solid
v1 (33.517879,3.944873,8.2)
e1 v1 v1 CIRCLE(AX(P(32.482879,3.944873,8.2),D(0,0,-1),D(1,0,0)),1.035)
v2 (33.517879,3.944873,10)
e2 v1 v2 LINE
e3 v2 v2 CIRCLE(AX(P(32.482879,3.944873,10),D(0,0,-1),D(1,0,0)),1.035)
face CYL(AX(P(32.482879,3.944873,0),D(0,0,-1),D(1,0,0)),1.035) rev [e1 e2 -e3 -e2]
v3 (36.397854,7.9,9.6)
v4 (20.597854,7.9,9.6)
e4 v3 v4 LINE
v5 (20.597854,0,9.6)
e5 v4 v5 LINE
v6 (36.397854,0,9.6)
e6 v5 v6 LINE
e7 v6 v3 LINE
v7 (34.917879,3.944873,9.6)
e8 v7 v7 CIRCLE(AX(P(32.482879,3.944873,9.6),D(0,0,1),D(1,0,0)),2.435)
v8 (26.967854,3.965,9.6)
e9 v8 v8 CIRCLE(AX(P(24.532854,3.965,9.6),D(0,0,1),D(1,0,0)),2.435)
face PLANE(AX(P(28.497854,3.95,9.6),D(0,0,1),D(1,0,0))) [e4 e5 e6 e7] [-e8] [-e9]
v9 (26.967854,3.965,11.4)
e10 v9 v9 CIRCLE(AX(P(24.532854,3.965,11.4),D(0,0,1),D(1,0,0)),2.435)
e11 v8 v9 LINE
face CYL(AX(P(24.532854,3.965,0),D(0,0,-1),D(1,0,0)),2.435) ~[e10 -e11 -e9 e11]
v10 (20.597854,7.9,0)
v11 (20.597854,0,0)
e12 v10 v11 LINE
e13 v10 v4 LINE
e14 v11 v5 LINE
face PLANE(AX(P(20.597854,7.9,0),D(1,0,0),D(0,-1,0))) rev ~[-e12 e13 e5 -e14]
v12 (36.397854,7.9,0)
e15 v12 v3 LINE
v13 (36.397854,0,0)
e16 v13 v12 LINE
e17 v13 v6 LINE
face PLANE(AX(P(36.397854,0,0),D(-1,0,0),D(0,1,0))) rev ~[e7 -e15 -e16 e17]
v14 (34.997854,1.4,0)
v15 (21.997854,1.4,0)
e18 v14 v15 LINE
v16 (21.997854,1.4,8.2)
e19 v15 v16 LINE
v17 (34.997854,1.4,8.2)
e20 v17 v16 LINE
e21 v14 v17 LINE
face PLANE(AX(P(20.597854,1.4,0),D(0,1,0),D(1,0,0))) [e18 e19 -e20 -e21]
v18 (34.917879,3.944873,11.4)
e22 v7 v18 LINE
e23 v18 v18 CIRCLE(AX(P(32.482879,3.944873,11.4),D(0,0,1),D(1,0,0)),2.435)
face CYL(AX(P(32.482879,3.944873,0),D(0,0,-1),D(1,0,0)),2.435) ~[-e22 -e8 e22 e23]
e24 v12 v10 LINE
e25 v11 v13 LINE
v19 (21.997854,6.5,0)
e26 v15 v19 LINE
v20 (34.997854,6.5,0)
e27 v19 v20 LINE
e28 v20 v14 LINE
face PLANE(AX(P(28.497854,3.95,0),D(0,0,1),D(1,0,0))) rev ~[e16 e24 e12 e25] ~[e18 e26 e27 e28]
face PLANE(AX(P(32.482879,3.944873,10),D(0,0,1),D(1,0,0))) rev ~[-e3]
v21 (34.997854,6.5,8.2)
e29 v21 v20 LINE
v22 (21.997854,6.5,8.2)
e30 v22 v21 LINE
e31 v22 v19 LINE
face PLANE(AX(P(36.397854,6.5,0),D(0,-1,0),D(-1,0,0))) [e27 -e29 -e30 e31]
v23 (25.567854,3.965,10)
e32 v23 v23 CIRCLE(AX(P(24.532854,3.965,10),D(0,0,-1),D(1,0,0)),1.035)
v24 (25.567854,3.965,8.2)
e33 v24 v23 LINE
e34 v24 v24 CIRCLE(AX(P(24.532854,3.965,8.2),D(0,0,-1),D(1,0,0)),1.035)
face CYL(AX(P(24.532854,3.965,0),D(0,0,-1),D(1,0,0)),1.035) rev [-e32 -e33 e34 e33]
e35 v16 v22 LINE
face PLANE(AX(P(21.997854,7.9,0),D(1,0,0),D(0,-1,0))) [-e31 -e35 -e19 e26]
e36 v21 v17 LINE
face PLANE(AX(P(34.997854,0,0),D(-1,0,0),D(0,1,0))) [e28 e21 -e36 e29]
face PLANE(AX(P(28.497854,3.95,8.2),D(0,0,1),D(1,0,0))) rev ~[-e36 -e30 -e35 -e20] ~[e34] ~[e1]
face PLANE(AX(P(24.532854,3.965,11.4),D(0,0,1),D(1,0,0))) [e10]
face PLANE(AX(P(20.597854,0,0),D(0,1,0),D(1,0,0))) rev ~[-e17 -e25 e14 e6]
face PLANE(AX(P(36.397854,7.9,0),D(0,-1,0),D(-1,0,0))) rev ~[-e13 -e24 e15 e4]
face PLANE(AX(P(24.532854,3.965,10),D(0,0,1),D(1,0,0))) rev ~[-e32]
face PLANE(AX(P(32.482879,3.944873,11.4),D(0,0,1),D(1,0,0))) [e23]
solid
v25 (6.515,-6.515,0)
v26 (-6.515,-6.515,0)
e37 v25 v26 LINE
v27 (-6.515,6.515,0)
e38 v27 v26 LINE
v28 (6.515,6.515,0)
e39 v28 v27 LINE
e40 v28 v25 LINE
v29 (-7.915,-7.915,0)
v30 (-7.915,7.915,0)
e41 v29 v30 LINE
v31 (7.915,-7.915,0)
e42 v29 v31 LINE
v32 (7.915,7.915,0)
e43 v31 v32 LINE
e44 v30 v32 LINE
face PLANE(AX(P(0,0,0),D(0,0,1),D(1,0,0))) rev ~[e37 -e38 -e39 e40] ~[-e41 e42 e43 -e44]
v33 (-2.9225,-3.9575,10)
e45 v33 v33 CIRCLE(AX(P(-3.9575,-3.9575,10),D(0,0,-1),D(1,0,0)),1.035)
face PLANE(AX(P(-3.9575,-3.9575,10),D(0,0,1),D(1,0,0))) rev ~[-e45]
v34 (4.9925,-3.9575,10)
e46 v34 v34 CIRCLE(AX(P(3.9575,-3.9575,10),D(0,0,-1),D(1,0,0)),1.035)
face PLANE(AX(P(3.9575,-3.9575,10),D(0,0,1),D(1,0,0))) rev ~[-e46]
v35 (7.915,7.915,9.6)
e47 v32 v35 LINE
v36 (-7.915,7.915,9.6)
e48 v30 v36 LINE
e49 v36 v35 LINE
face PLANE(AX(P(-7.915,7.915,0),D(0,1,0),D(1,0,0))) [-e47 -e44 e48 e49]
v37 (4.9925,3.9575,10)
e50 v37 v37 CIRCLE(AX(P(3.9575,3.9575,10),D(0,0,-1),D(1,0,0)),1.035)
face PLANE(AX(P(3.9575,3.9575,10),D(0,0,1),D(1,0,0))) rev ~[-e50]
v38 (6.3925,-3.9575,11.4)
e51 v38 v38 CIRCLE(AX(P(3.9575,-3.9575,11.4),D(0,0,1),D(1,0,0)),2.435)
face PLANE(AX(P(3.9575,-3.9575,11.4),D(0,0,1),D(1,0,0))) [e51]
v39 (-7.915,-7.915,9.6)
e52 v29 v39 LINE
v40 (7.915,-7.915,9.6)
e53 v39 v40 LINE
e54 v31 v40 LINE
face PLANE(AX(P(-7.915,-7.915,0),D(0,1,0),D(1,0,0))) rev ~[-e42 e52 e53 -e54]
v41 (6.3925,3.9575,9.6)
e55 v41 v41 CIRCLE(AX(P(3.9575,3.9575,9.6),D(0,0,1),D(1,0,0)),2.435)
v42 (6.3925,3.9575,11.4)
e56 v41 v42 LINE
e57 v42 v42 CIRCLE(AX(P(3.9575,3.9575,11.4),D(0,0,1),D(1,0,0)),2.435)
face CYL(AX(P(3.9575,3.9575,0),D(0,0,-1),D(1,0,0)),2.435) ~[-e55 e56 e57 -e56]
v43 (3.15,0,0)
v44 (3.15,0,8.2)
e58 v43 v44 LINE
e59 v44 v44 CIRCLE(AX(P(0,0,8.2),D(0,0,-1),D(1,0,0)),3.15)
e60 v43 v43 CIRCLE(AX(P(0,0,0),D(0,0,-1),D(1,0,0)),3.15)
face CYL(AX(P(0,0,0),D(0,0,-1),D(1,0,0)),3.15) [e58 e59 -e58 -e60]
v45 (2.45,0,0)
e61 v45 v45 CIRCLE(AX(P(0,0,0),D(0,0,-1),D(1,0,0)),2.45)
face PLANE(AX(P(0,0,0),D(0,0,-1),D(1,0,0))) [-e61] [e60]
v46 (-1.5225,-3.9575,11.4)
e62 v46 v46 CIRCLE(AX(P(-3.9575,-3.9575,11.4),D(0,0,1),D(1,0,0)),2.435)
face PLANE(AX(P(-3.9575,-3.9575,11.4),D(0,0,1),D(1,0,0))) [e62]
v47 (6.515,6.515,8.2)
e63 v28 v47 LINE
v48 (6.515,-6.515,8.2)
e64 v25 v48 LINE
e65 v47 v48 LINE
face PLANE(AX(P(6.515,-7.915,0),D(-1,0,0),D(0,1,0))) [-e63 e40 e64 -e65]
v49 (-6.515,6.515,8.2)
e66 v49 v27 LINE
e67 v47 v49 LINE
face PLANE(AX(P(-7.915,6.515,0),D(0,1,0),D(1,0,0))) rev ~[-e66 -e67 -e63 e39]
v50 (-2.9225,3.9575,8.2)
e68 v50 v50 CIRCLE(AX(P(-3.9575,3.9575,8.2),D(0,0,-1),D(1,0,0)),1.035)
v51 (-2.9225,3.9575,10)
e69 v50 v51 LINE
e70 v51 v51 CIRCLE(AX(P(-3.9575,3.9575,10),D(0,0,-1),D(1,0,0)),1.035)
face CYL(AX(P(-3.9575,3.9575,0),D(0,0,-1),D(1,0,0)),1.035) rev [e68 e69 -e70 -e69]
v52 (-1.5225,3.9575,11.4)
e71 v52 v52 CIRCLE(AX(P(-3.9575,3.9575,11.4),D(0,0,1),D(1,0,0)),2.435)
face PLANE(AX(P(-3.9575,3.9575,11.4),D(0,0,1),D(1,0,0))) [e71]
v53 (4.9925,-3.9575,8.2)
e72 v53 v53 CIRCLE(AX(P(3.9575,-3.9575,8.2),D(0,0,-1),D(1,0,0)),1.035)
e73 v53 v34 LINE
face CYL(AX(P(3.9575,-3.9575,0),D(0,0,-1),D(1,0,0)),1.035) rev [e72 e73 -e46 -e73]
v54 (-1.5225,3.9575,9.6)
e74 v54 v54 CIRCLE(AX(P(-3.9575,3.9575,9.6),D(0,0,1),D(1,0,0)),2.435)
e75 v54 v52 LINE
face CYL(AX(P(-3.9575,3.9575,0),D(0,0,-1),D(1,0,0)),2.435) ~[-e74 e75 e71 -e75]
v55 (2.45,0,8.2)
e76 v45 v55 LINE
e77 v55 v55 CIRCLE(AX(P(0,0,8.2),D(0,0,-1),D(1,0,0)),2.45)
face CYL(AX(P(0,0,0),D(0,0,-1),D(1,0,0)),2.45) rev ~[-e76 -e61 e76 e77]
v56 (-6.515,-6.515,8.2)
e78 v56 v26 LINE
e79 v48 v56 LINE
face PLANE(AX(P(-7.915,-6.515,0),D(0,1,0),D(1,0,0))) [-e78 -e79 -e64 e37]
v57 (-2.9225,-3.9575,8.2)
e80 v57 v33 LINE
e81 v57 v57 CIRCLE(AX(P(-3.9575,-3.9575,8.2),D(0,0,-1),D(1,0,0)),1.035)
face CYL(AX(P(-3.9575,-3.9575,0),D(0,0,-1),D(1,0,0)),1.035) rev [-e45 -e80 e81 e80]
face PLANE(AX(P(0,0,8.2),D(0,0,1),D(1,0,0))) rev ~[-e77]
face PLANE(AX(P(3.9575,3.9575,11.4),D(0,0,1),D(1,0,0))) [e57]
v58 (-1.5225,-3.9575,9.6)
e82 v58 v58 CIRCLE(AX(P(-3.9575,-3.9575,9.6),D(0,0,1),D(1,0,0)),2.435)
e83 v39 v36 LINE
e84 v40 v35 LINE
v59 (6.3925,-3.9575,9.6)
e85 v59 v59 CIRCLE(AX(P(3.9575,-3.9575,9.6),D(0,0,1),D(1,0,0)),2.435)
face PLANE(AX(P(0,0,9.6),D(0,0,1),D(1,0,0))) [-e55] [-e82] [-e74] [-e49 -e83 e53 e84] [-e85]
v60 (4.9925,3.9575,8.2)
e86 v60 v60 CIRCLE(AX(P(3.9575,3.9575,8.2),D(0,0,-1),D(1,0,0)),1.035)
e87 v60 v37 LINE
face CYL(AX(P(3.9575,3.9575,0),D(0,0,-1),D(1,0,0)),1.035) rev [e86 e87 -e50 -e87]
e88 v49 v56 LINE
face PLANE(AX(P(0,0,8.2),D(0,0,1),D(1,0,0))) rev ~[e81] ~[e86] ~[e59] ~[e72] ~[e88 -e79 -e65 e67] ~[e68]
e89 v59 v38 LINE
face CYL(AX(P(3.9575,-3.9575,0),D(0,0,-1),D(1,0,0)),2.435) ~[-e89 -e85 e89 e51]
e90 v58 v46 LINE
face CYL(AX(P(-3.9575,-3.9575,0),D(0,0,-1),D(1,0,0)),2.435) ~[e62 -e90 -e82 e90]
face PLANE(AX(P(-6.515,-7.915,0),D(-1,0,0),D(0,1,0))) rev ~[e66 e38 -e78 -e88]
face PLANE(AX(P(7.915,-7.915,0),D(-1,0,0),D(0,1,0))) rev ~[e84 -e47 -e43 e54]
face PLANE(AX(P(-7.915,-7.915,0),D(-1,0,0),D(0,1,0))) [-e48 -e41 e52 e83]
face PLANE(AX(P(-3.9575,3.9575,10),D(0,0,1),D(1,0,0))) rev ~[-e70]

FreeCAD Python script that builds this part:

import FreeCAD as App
import Part
import Sketcher
from FreeCAD import Vector


def faces_at(feature, points):
    """Names of the faces that lie closest to the given points."""
    faces = feature.Shape.Faces
    near = lambda p: min(range(len(faces)), key=lambda i: faces[i].distToShape(Part.Vertex(*p))[0])
    return sorted({f"Face{near(p) + 1}" for p in points})

doc = App.newDocument("Part")
params = doc.addObject("Spreadsheet::Sheet", "Params")
for row, (alias, value) in enumerate([
    ("sketch1_diameter", "4.87 mm"),
    ("sketch1_width", "15.83 mm"),
    ("pad1_length", "9.6 mm"),
    ("sketch2_diameter", "4.87 mm"),
    ("pad2_length", "11.4 mm"),
    ("thickness_wall", "1.4 mm"),
    ("sketch3_diameter", "6.3 mm"),
    ("sketch3_diameter2", "4.9 mm"),
    ("pad3_length", "9.5 mm"),
    ("sketch4_diameter", "4.87 mm"),
    ("sketch4_width", "15.8 mm"),
    ("sketch4_height", "7.9 mm"),
    ("pad4_length", "9.6 mm"),
    ("sketch5_diameter", "4.87 mm"),
    ("pad5_length", "11.4 mm"),
    ("thickness2_wall", "1.4 mm"),
], start=1):
    params.set(f"A{row}", alias)
    params.set(f"B{row}", "=" + value)
    params.setAlias(f"B{row}", alias)

body = doc.addObject("PartDesign::Body", "Body")

sketch1 = doc.addObject("Sketcher::SketchObject", "Sketch")
body.addObject(sketch1)
sketch1.AttachmentSupport = (doc.XY_Plane, [""])
sketch1.MapMode = "FlatFace"
sketch1.addGeometry([
    Part.LineSegment(Vector(-7.915, 7.915, 0), Vector(-7.915, -7.915, 0)),
    Part.LineSegment(Vector(-7.915, -7.915, 0), Vector(7.915, -7.915, 0)),
    Part.LineSegment(Vector(7.915, -7.915, 0), Vector(7.915, 7.915, 0)),
    Part.LineSegment(Vector(7.915, 7.915, 0), Vector(-7.915, 7.915, 0)),
    Part.Circle(Vector(-3.9575, -3.9575, 0), Vector(0, 0, 1), 2.435),
    Part.Circle(Vector(3.9575, -3.9575, 0), Vector(0, 0, 1), 2.435),
    Part.Circle(Vector(-3.9575, 3.9575, 0), Vector(0, 0, 1), 2.435),
    Part.Circle(Vector(3.9575, 3.9575, 0), Vector(0, 0, 1), 2.435),
], False)
sketch1.addConstraint([
    Sketcher.Constraint("Coincident", 0, 2, 1, 1),
    Sketcher.Constraint("Coincident", 1, 2, 2, 1),
    Sketcher.Constraint("Coincident", 2, 2, 3, 1),
    Sketcher.Constraint("Coincident", 3, 2, 0, 1),
    Sketcher.Constraint("Vertical", 0),
    Sketcher.Constraint("Horizontal", 1),
    Sketcher.Constraint("Vertical", 2),
    Sketcher.Constraint("Horizontal", 3),
    Sketcher.Constraint("Equal", 4, 5),
    Sketcher.Constraint("Equal", 5, 6),
    Sketcher.Constraint("Equal", 6, 7),
    Sketcher.Constraint("Symmetric", 5, 3, 6, 3, -1, 1),
    Sketcher.Constraint("Symmetric", 4, 3, 7, 3, -1, 1),
    Sketcher.Constraint("Symmetric", 0, 2, 2, 2, -1, 1),
    Sketcher.Constraint("Symmetric", 4, 3, 5, 3, -2),
    Sketcher.Constraint("Equal", 3, 0),
    Sketcher.Constraint("Diameter", 4, 4.87),
    Sketcher.Constraint("DistanceX", 1, 1, 1, 2, 15.83),
    Sketcher.Constraint("DistanceX", 4, 3, 5, 3, 7.915),
    Sketcher.Constraint("DistanceY", 4, 3, 6, 3, 7.915),
])
sketch1.setExpression("Constraints[16]", "Params.sketch1_diameter")
sketch1.setExpression("Constraints[17]", "Params.sketch1_width")
pad1 = doc.addObject("PartDesign::Pad", "Pad")
body.addObject(pad1)
pad1.Profile = sketch1
pad1.setExpression("Length", "Params.pad1_length")

sketch2 = doc.addObject("Sketcher::SketchObject", "Sketch001")
body.addObject(sketch2)
sketch2.AttachmentSupport = (doc.XY_Plane, [""])
sketch2.MapMode = "FlatFace"
sketch2.addGeometry([
    Part.Circle(Vector(-3.9575, 3.9575, 0), Vector(0, 0, 1), 2.435),
    Part.Circle(Vector(3.9575, 3.9575, 0), Vector(0, 0, 1), 2.435),
    Part.Circle(Vector(3.9575, -3.9575, 0), Vector(0, 0, 1), 2.435),
    Part.Circle(Vector(-3.9575, -3.9575, 0), Vector(0, 0, 1), 2.435),
], False)
sketch2.addConstraint([
    Sketcher.Constraint("Equal", 0, 1),
    Sketcher.Constraint("Equal", 1, 2),
    Sketcher.Constraint("Equal", 2, 3),
    Sketcher.Constraint("Symmetric", 0, 3, 2, 3, -1, 1),
    Sketcher.Constraint("Symmetric", 1, 3, 3, 3, -1, 1),
    Sketcher.Constraint("Symmetric", 0, 3, 1, 3, -2),
    Sketcher.Constraint("Diameter", 0, 4.87),
    Sketcher.Constraint("DistanceX", 0, 3, 1, 3, 7.915),
    Sketcher.Constraint("DistanceY", 2, 3, 1, 3, 7.915),
])
sketch2.setExpression("Constraints[6]", "Params.sketch2_diameter")
pad2 = doc.addObject("PartDesign::Pad", "Pad001")
body.addObject(pad2)
pad2.Profile = sketch2
pad2.setExpression("Length", "Params.pad2_length")
doc.recompute()

thickness = doc.addObject("PartDesign::Thickness", "Thickness")
body.addObject(thickness)
thickness.Base = (pad2, faces_at(pad2, [(0, 0, 0)]))
thickness.setExpression("Value", "Params.thickness_wall")
thickness.Reversed = True
thickness.Join = "Intersection"

sketch3 = doc.addObject("Sketcher::SketchObject", "Sketch002")
body.addObject(sketch3)
sketch3.AttachmentSupport = (doc.XY_Plane, [""])
sketch3.MapMode = "FlatFace"
sketch3.addGeometry([
    Part.Circle(Vector(0, 0, 0), Vector(0, 0, 1), 3.15),
    Part.Circle(Vector(0, 0, 0), Vector(0, 0, 1), 2.45),
], False)
sketch3.addConstraint([
    Sketcher.Constraint("Coincident", 0, 3, -1, 1),
    Sketcher.Constraint("Coincident", 1, 3, -1, 1),
    Sketcher.Constraint("Diameter", 0, 6.3),
    Sketcher.Constraint("Diameter", 1, 4.9),
])
sketch3.setExpression("Constraints[2]", "Params.sketch3_diameter")
sketch3.setExpression("Constraints[3]", "Params.sketch3_diameter2")
pad3 = doc.addObject("PartDesign::Pad", "Pad002")
body.addObject(pad3)
pad3.Profile = sketch3
pad3.setExpression("Length", "Params.pad3_length")
body2 = doc.addObject("PartDesign::Body", "Body001")

sketch4 = doc.addObject("Sketcher::SketchObject", "Sketch003")
body2.addObject(sketch4)
sketch4.AttachmentSupport = (doc.getObject("XY_Plane001"), [""])
sketch4.MapMode = "FlatFace"
sketch4.addGeometry([
    Part.LineSegment(Vector(20.597854, 7.9, 0), Vector(20.597854, 0, 0)),
    Part.LineSegment(Vector(20.597854, 0, 0), Vector(36.397854, 0, 0)),
    Part.LineSegment(Vector(36.397854, 0, 0), Vector(36.397854, 7.9, 0)),
    Part.LineSegment(Vector(36.397854, 7.9, 0), Vector(20.597854, 7.9, 0)),
    Part.Circle(Vector(32.482879, 3.944873, 0), Vector(0, 0, 1), 2.435),
    Part.Circle(Vector(24.532854, 3.965, 0), Vector(0, 0, 1), 2.435),
], False)
sketch4.addConstraint([
    Sketcher.Constraint("Coincident", 0, 2, 1, 1),
    Sketcher.Constraint("Coincident", 1, 2, 2, 1),
    Sketcher.Constraint("Coincident", 2, 2, 3, 1),
    Sketcher.Constraint("Coincident", 3, 2, 0, 1),
    Sketcher.Constraint("Vertical", 0),
    Sketcher.Constraint("Horizontal", 1),
    Sketcher.Constraint("Vertical", 2),
    Sketcher.Constraint("Horizontal", 3),
    Sketcher.Constraint("Equal", 4, 5),
    Sketcher.Constraint("PointOnObject", 0, 2, -1),
    Sketcher.Constraint("Diameter", 4, 4.87),
    Sketcher.Constraint("DistanceX", 1, 1, 1, 2, 15.8),
    Sketcher.Constraint("DistanceY", 0, 2, 0, 1, 7.9),
    Sketcher.Constraint("DistanceY", -1, 1, 5, 3, 3.965),
    Sketcher.Constraint("DistanceX", 0, 2, 5, 3, 3.935),
    Sketcher.Constraint("DistanceX", -1, 1, 4, 3, 32.482879),
    Sketcher.Constraint("DistanceY", -1, 1, 4, 3, 3.944873),
    Sketcher.Constraint("DistanceX", -1, 1, 5, 3, 24.532854),
])
sketch4.setExpression("Constraints[10]", "Params.sketch4_diameter")
sketch4.setExpression("Constraints[11]", "Params.sketch4_width")
sketch4.setExpression("Constraints[12]", "Params.sketch4_height")
pad4 = doc.addObject("PartDesign::Pad", "Pad003")
body2.addObject(pad4)
pad4.Profile = sketch4
pad4.setExpression("Length", "Params.pad4_length")

sketch5 = doc.addObject("Sketcher::SketchObject", "Sketch004")
body2.addObject(sketch5)
sketch5.AttachmentSupport = (doc.getObject("XY_Plane001"), [""])
sketch5.MapMode = "FlatFace"
sketch5.addGeometry([
    Part.Circle(Vector(24.532854, 3.965, 0), Vector(0, 0, 1), 2.435),
    Part.Circle(Vector(32.482879, 3.944873, 0), Vector(0, 0, 1), 2.435),
], False)
sketch5.addConstraint([
    Sketcher.Constraint("Equal", 0, 1),
    Sketcher.Constraint("Diameter", 0, 4.87),
    Sketcher.Constraint("DistanceY", -1, 1, 0, 3, 3.965),
    Sketcher.Constraint("DistanceX", -1, 1, 1, 3, 32.482879),
    Sketcher.Constraint("DistanceX", -1, 1, 0, 3, 24.532854),
    Sketcher.Constraint("DistanceY", -1, 1, 1, 3, 3.944873),
])
sketch5.setExpression("Constraints[1]", "Params.sketch5_diameter")
pad5 = doc.addObject("PartDesign::Pad", "Pad004")
body2.addObject(pad5)
pad5.Profile = sketch5
pad5.setExpression("Length", "Params.pad5_length")
doc.recompute()

thickness2 = doc.addObject("PartDesign::Thickness", "Thickness001")
body2.addObject(thickness2)
thickness2.Base = (pad5, faces_at(pad5, [(28.498, 3.95, 0)]))
thickness2.setExpression("Value", "Params.thickness2_wall")
thickness2.Reversed = True
thickness2.Join = "Intersection"

doc.recompute()
